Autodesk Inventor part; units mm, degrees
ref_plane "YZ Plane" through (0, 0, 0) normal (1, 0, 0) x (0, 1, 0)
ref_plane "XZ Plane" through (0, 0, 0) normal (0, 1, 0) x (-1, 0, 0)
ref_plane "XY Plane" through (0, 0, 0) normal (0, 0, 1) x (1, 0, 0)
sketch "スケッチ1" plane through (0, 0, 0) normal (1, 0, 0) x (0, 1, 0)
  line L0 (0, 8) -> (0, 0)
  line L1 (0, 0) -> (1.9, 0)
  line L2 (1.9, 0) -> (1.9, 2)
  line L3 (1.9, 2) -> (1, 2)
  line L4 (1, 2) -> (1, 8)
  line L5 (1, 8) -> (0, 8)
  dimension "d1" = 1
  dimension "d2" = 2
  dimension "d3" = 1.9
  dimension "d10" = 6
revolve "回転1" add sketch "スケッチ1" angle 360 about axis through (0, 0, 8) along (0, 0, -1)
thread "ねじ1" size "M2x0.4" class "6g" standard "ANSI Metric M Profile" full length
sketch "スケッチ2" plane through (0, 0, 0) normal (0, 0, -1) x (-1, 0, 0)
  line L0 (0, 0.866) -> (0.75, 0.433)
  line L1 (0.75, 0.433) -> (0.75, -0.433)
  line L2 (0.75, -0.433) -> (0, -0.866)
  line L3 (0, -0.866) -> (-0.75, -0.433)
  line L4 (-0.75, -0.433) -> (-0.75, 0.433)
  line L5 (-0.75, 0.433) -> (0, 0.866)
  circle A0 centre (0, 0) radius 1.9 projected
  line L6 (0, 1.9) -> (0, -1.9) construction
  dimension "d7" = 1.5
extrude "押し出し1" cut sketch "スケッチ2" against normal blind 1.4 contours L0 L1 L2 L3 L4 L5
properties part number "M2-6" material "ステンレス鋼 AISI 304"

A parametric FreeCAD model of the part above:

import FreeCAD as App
import Part
import Sketcher

V = App.Vector
Q = App.Units.Quantity

doc = App.newDocument("Part")
params = doc.addObject("Spreadsheet::Sheet", "Params")
for row, (alias, value) in enumerate([
    ("sketch1_width", "1 mm"),
    ("sketch1_height", "2 mm"),
    ("sketch1_height2", "6 mm"),
    ("sketch1_width2", "1.9 mm"),
    ("revolution_angle", "360 deg"),
    ("pocket1_length", "1.4 mm"),
], start=1):
    params.set(f"A{row}", alias)
    params.set(f"B{row}", "=" + value)
    params.setAlias(f"B{row}", alias)

body = doc.addObject("PartDesign::Body", "Body")

sketch1 = doc.addObject("Sketcher::SketchObject", "Sketch")
body.addObject(sketch1)
sketch1.AttachmentSupport = (doc.YZ_Plane, [""])
sketch1.MapMode = "FlatFace"
sketch1.addGeometry([
    Part.LineSegment(V(1, 8, 0), V(0, 8, 0)),
    Part.LineSegment(V(0, 8, 0), V(0, 0, 0)),
    Part.LineSegment(V(0, 0, 0), V(1.9, 0, 0)),
    Part.LineSegment(V(1.9, 0, 0), V(1.9, 2, 0)),
    Part.LineSegment(V(1.9, 2, 0), V(1, 2, 0)),
    Part.LineSegment(V(1, 2, 0), V(1, 8, 0)),
], False)
sketch1.addConstraint([
    Sketcher.Constraint("Coincident", 0, 2, 1, 1),
    Sketcher.Constraint("Coincident", 1, 2, 2, 1),
    Sketcher.Constraint("Coincident", 2, 2, 3, 1),
    Sketcher.Constraint("Coincident", 3, 2, 4, 1),
    Sketcher.Constraint("Coincident", 4, 2, 5, 1),
    Sketcher.Constraint("Coincident", 5, 2, 0, 1),
    Sketcher.Constraint("Horizontal", 0),
    Sketcher.Constraint("Vertical", 1),
    Sketcher.Constraint("Horizontal", 2),
    Sketcher.Constraint("Vertical", 3),
    Sketcher.Constraint("Horizontal", 4),
    Sketcher.Constraint("Vertical", 5),
    Sketcher.Constraint("Coincident", 1, 2, -1, 1),
    Sketcher.Constraint("DistanceX", 0, 2, 0, 1, 1.0),
    Sketcher.Constraint("DistanceY", 3, 1, 3, 2, 2.0),
    Sketcher.Constraint("DistanceY", 5, 1, 5, 2, 6.0),
    Sketcher.Constraint("DistanceX", 2, 1, 2, 2, 1.9),
])
sketch1.setExpression("Constraints[13]", "Params.sketch1_width")
sketch1.setExpression("Constraints[14]", "Params.sketch1_height")
sketch1.setExpression("Constraints[15]", "Params.sketch1_height2")
sketch1.setExpression("Constraints[16]", "Params.sketch1_width2")
revolution = doc.addObject("PartDesign::Revolution", "Revolution")
body.addObject(revolution)
revolution.Profile = sketch1
revolution.ReferenceAxis = (sketch1, ["V_Axis"])
revolution.setExpression("Angle", "Params.revolution_angle")

sketch2 = doc.addObject("Sketcher::SketchObject", "Sketch001")
body.addObject(sketch2)
sketch2.AttachmentSupport = (doc.XY_Plane, [""])
sketch2.MapMode = "FlatFace"
sketch2.addGeometry([
    Part.LineSegment(V(-0.8, 0.4, 0), V(0, 0.9, 0)),
    Part.LineSegment(V(0, 0.9, 0), V(0.8, 0.4, 0)),
    Part.LineSegment(V(0.8, 0.4, 0), V(0.8, -0.4, 0)),
    Part.LineSegment(V(0.8, -0.4, 0), V(0, -0.9, 0)),
    Part.LineSegment(V(0, -0.9, 0), V(-0.8, -0.4, 0)),
    Part.LineSegment(V(-0.8, -0.4, 0), V(-0.8, 0.4, 0)),
], False)
sketch2.addConstraint([
    Sketcher.Constraint("Coincident", 0, 2, 1, 1),
    Sketcher.Constraint("Coincident", 1, 2, 2, 1),
    Sketcher.Constraint("Coincident", 2, 2, 3, 1),
    Sketcher.Constraint("Coincident", 3, 2, 4, 1),
    Sketcher.Constraint("Coincident", 4, 2, 5, 1),
    Sketcher.Constraint("Coincident", 5, 2, 0, 1),
    Sketcher.Constraint("Vertical", 2),
    Sketcher.Constraint("Vertical", 5),
    Sketcher.Constraint("Symmetric", 0, 2, 3, 2, -1, 1),
    Sketcher.Constraint("Symmetric", 1, 2, 4, 2, -1, 1),
    Sketcher.Constraint("PointOnObject", 0, 2, -2),
    Sketcher.Constraint("Parallel", 0, 3),
    Sketcher.Constraint("Horizontal", 2, 2, 4, 2),
    Sketcher.Constraint("DistanceX", 4, 2, 2, 2, 1.5),
    Sketcher.Constraint("Angle", 0, Q("29.9993 deg")),
    Sketcher.Constraint("DistanceY", 2, 2, 2, 1, 0.866),
])
pocket1 = doc.addObject("PartDesign::Pocket", "Pocket")
body.addObject(pocket1)
pocket1.Profile = sketch2
pocket1.setExpression("Length", "Params.pocket1_length")
pocket1.Reversed = True

doc.recompute()
